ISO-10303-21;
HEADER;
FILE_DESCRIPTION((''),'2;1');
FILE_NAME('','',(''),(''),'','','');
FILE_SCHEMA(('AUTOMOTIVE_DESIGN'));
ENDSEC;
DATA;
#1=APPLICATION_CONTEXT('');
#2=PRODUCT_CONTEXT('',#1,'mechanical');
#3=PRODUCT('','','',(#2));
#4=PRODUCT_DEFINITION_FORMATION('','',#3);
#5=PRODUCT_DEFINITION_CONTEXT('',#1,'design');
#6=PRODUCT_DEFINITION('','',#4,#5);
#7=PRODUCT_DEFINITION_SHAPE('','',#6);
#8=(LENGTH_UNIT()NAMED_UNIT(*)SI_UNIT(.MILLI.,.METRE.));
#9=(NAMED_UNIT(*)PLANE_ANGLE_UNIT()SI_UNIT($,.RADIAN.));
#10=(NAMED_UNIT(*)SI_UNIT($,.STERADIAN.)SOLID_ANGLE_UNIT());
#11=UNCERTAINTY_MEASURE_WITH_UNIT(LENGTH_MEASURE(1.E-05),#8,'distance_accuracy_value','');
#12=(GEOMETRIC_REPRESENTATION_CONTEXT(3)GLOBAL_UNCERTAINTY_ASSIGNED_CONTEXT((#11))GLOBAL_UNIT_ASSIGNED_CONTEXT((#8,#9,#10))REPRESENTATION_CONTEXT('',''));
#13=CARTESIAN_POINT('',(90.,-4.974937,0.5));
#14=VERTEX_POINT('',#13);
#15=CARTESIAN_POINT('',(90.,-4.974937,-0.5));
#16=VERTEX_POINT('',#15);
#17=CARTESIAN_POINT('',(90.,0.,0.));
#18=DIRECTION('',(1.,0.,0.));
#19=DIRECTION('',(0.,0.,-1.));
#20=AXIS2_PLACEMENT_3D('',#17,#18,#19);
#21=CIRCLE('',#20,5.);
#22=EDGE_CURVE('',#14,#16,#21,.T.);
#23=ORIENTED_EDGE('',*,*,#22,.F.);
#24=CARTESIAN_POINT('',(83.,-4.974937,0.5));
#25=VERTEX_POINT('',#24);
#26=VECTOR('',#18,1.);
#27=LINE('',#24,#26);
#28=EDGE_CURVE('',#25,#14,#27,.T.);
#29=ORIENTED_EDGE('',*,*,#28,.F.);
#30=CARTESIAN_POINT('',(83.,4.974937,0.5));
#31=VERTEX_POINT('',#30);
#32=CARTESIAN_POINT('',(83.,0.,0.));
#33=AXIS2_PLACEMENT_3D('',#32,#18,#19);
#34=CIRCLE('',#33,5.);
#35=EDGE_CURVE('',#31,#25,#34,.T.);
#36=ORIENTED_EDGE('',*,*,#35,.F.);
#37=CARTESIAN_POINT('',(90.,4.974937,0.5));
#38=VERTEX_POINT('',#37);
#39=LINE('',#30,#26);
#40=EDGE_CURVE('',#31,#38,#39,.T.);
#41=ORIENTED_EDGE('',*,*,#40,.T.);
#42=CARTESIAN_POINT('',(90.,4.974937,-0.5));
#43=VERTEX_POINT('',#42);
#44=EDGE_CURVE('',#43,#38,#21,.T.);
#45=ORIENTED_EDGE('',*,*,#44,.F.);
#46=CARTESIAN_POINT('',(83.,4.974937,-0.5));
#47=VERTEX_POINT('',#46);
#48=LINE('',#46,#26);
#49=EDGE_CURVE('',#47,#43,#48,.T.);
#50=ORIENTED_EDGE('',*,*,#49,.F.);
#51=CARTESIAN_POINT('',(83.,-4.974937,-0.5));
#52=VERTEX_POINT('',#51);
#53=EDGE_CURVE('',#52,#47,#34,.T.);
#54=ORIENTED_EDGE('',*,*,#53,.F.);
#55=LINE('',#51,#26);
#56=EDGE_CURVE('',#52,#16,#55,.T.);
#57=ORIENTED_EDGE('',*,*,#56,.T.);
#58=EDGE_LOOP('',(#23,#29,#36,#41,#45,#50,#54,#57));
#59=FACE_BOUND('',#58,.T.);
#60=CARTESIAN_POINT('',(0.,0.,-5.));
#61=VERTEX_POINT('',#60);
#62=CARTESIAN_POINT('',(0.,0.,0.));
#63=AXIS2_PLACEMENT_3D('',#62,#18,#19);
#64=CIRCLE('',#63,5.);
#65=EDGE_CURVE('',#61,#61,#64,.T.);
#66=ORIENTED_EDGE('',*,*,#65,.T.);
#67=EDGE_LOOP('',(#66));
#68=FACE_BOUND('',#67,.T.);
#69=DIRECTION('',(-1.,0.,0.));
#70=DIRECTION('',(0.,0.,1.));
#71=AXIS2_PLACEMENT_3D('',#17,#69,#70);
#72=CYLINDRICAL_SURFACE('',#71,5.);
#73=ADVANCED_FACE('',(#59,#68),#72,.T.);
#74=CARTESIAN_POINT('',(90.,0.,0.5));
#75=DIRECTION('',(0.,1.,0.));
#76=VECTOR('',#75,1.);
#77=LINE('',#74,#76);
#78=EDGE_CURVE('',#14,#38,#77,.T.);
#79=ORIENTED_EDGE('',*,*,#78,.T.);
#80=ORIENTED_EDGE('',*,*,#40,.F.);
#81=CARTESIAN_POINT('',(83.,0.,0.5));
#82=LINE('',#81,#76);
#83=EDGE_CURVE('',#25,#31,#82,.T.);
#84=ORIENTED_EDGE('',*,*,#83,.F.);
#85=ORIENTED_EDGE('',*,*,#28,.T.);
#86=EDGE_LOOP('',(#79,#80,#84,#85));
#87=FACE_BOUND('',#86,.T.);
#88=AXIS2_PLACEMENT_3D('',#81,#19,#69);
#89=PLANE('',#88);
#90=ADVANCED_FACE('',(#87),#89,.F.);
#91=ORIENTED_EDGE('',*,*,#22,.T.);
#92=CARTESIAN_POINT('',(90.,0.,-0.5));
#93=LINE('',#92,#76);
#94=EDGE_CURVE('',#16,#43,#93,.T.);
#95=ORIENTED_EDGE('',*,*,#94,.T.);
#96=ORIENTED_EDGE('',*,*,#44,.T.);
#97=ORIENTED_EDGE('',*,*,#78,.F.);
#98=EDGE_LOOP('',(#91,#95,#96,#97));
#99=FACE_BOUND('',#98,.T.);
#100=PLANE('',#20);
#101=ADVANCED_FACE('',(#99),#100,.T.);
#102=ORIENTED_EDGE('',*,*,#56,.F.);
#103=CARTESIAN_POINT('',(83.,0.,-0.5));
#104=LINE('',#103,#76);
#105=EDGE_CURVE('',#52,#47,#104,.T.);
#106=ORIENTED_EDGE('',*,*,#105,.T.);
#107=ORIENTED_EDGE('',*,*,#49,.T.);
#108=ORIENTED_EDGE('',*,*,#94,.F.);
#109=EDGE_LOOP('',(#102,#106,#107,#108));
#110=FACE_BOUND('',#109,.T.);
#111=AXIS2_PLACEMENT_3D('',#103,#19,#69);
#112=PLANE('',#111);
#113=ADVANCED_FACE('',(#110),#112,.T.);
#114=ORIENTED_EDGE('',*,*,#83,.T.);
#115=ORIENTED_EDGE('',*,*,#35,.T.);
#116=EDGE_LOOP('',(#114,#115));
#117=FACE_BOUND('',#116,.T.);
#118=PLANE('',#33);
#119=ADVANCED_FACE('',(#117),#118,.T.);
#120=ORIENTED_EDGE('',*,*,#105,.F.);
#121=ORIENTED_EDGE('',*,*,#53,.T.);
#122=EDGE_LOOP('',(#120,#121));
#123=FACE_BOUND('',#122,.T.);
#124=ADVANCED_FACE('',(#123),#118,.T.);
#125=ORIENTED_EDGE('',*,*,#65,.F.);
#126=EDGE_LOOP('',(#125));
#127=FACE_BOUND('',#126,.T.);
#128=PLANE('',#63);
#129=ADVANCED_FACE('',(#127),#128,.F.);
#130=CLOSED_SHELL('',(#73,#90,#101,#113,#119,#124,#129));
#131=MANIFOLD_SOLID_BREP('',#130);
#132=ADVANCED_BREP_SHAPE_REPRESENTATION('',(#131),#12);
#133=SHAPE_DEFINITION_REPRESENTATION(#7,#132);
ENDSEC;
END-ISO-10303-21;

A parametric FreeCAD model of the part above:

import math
import FreeCAD as App
import Part
import Sketcher
from FreeCAD import Vector
Q = App.Units.Quantity

doc = App.newDocument("Part")
body = doc.addObject("PartDesign::Body", "Body")

sketch1 = body.newObject("Sketcher::SketchObject", "Sketch")
sketch1.AttachmentSupport = (doc.getObject("YZ_Plane"), [""])
sketch1.MapMode = "FlatFace"
sketch1.addGeometry(Part.Circle(Vector(0, 0, 0), Vector(0, 0, 1), 5), False)
sketch1.addConstraint(Sketcher.Constraint("Coincident", 0, 3, -1, 1))
sketch1.addConstraint(Sketcher.Constraint("Diameter", 0, Q("10 mm")))
pad1 = body.newObject("PartDesign::Pad", "Pad")
pad1.Profile = sketch1
pad1.Length = 90

sketch2 = body.newObject("Sketcher::SketchObject", "Sketch001")
sketch2.AttachmentSupport = (doc.getObject("YZ_Plane"), [""])
sketch2.MapMode = "FlatFace"
sketch2.AttachmentOffset = App.Placement(Vector(0, 0, 83), App.Rotation())
sketch2.addGeometry(Part.ArcOfCircle(Part.Circle(Vector(0, 0, 0), Vector(0, 0, 1), 5), math.radians(6), math.radians(174)), False)
sketch2.addGeometry(Part.LineSegment(Vector(-5, 0, 0), Vector(5, 0, 0)), False)
sketch2.addGeometry(Part.LineSegment(Vector(5, 0, 0), Vector(-5, 0, 0)), False)
sketch2.addGeometry(Part.ArcOfCircle(Part.Circle(Vector(0, 0, 0), Vector(0, 0, 1), 5), math.radians(-174), math.radians(-90)), False)
sketch2.addGeometry(Part.ArcOfCircle(Part.Circle(Vector(0, 0, 0), Vector(0, 0, 1), 5), math.radians(-90), math.radians(-6)), False)
sketch2.addConstraint(Sketcher.Constraint("Coincident", 0, 1, 1, 2))
sketch2.addConstraint(Sketcher.Constraint("Coincident", 1, 1, 0, 2))
sketch2.addConstraint(Sketcher.Constraint("Coincident", 2, 2, 3, 1))
sketch2.addConstraint(Sketcher.Constraint("Tangent", 3, 2, 4, 1))
sketch2.addConstraint(Sketcher.Constraint("Coincident", 4, 2, 2, 1))
sketch2.addConstraint(Sketcher.Constraint("Horizontal", 1))
sketch2.addConstraint(Sketcher.Constraint("Horizontal", 2))
sketch2.addConstraint(Sketcher.Constraint("Coincident", 0, 3, -1, 1))
sketch2.addConstraint(Sketcher.Constraint("Coincident", 3, 3, -1, 1))
sketch2.addConstraint(Sketcher.Constraint("Equal", 0, 3))
sketch2.addConstraint(Sketcher.Constraint("Equal", 3, 4))
sketch2.addConstraint(Sketcher.Constraint("PointOnObject", 3, 2, -2))
sketch2.addConstraint(Sketcher.Constraint("Vertical", 1, 1, 2, 2))
sketch2.addConstraint(Sketcher.Constraint("Radius", 0, Q("5 mm")))
sketch2.addConstraint(Sketcher.Constraint("DistanceY", 2, 2, 1, 1, Q("1 mm")))
pocket1 = body.newObject("PartDesign::Pocket", "Pocket")
pocket1.Profile = sketch2
pocket1.Length = 7
pocket1.Reversed = True

doc.recompute()
